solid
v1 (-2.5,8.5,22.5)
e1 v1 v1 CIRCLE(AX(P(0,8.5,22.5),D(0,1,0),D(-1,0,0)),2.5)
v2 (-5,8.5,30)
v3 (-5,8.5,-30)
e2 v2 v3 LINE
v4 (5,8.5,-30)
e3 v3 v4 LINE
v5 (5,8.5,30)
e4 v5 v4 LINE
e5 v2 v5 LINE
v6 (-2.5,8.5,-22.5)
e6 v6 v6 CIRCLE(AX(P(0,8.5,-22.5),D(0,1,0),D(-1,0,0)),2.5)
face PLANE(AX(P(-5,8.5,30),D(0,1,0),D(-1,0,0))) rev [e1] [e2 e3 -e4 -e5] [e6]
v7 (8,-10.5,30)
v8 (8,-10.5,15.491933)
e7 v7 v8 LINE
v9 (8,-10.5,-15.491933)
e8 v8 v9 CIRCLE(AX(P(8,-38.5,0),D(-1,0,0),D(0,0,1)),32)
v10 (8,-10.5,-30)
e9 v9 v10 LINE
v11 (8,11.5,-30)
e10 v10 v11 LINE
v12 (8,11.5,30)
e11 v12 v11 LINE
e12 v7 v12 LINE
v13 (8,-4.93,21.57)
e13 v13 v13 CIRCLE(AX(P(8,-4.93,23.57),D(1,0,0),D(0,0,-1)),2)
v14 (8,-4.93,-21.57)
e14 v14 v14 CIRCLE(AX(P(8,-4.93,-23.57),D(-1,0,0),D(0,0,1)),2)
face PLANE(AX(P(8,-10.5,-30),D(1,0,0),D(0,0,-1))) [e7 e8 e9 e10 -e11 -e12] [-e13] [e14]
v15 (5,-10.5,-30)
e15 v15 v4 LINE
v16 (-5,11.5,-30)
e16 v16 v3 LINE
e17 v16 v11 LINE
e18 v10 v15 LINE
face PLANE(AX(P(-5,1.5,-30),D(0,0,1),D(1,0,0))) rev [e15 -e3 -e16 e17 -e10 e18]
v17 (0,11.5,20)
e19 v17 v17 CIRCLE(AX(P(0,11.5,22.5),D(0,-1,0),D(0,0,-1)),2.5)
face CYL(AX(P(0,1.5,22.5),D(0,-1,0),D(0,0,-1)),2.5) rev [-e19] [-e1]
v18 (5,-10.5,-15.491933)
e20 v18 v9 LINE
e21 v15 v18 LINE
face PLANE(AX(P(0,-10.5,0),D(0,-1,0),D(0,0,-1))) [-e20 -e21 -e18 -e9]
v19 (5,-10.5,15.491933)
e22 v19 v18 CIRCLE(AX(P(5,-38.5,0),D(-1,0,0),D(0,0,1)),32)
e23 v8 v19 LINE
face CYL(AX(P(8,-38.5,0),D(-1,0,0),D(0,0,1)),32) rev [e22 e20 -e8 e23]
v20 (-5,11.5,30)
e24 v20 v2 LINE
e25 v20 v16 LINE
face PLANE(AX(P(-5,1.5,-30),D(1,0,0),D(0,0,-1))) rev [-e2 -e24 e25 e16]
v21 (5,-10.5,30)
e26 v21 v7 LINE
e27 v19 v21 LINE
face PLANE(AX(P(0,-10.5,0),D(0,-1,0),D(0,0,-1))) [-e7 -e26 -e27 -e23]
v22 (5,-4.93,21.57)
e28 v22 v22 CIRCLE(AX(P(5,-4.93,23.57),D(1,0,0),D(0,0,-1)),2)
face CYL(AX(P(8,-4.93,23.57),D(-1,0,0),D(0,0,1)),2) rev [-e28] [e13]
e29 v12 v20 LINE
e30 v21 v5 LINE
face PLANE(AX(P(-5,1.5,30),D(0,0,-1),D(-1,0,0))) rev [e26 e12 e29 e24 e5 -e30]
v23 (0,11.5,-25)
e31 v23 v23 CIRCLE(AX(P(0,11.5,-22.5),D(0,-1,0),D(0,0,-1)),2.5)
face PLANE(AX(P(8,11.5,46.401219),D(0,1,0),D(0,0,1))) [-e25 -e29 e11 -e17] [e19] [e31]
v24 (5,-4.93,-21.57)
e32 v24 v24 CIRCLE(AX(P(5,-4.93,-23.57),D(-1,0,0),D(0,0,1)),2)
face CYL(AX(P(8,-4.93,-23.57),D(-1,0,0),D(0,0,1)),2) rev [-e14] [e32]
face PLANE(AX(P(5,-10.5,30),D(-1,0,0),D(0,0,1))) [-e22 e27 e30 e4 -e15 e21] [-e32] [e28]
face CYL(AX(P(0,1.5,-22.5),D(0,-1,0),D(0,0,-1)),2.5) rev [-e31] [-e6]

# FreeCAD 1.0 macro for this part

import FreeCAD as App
import Part
import Sketcher

V = App.Vector


def add_polygon(sketch, points):
    """Adds a closed chain of lines whose ends are joined by coincident constraints."""
    first, n = sketch.GeometryCount, len(points)
    for a, b in zip(points, points[1:] + points[:1]):
        sketch.addGeometry(Part.LineSegment(App.Vector(*a, 0), App.Vector(*b, 0)), False)
    for i in range(n):
        sketch.addConstraint(Sketcher.Constraint("Coincident", first + i, 2, first + (i + 1) % n, 1))

doc = App.newDocument("Part")
body = doc.addObject("PartDesign::Body", "Body")

# Sketch on XZ plane
sketch1 = doc.addObject("Sketcher::SketchObject", "Sketch")
body.addObject(sketch1)
sketch1.AttachmentSupport = (doc.XZ_Plane, [""])
sketch1.MapMode = "FlatFace"
add_polygon(sketch1, [(-5, -30), (-5, 30), (5, 30), (5, -30)])  # lines 0-3
sketch1.addGeometry(Part.Circle(V(0, 22.5, 0), V(0, 0, 1), 2.5), False)  # 4
sketch1.addGeometry(Part.Circle(V(0, -22.5, 0), V(0, 0, 1), 2.5), False)  # 5
sketch1.addConstraint(Sketcher.Constraint("Vertical", 0))
sketch1.addConstraint(Sketcher.Constraint("Horizontal", 1))
sketch1.addConstraint(Sketcher.Constraint("Vertical", 2))
sketch1.addConstraint(Sketcher.Constraint("Horizontal", 3))
sketch1.addConstraint(Sketcher.Constraint("Equal", 4, 5))
sketch1.addConstraint(Sketcher.Constraint("Symmetric", 4, 3, 5, 3, -1, 1))
sketch1.addConstraint(Sketcher.Constraint("Symmetric", 0, 2, 2, 2, -1, 1))
sketch1.addConstraint(Sketcher.Constraint("PointOnObject", 4, 3, -2))
sketch1.addConstraint(Sketcher.Constraint("Diameter", 4, 5.0))
sketch1.addConstraint(Sketcher.Constraint("DistanceX", 1, 1, 1, 2, 10.0))
sketch1.addConstraint(Sketcher.Constraint("DistanceY", 0, 1, 0, 2, 60.0))
sketch1.addConstraint(Sketcher.Constraint("DistanceY", 5, 3, 4, 3, 45.0))
pad1 = doc.addObject("PartDesign::Pad", "Pad")
body.addObject(pad1)
pad1.Profile = sketch1
pad1.Length = 1.5
pad1.Reversed = True

# Sketch on XZ plane
sketch2 = doc.addObject("Sketcher::SketchObject", "Sketch001")
body.addObject(sketch2)
sketch2.AttachmentSupport = (doc.XZ_Plane, [""])
sketch2.MapMode = "FlatFace"
sketch2.AttachmentOffset = App.Placement(V(0, 0, -1.5), App.Rotation())
add_polygon(sketch2, [(5, -30), (5, 30), (8, 30), (8, -30)])  # lines 0-3
sketch2.addConstraint(Sketcher.Constraint("Vertical", 0))
sketch2.addConstraint(Sketcher.Constraint("Horizontal", 1))
sketch2.addConstraint(Sketcher.Constraint("Vertical", 2))
sketch2.addConstraint(Sketcher.Constraint("Horizontal", 3))
sketch2.addConstraint(Sketcher.Constraint("DistanceX", 1, 1, 1, 2, 3.0))
sketch2.addConstraint(Sketcher.Constraint("DistanceY", 0, 1, 0, 2, 60.0))
sketch2.addConstraint(Sketcher.Constraint("DistanceX", -1, 1, 0, 2, 5.0))
sketch2.addConstraint(Sketcher.Constraint("DistanceY", -1, 1, 0, 2, 30.0))
pad2 = doc.addObject("PartDesign::Pad", "Pad001")
body.addObject(pad2)
pad2.Profile = sketch2
pad2.Length = 12

# Sketch on YZ plane
sketch3 = doc.addObject("Sketcher::SketchObject", "Sketch002")
body.addObject(sketch3)
sketch3.AttachmentSupport = (doc.YZ_Plane, [""])
sketch3.MapMode = "FlatFace"
sketch3.AttachmentOffset = App.Placement(V(0, 0, 5), App.Rotation())
sketch3.addGeometry(Part.Circle(V(-38.5, 0, 0), V(0, 0, 1), 32), False)
sketch3.addConstraint(Sketcher.Constraint("PointOnObject", 0, 3, -1))
sketch3.addConstraint(Sketcher.Constraint("Diameter", 0, 64.0))
sketch3.addConstraint(Sketcher.Constraint("DistanceX", 0, 3, -1, 1, 38.5))
pocket1 = doc.addObject("PartDesign::Pocket", "Pocket")
body.addObject(pocket1)
pocket1.Profile = sketch3
pocket1.Type = "ThroughAll"
pocket1.Reversed = True

# Sketch on XY plane
sketch4 = doc.addObject("Sketcher::SketchObject", "Sketch003")
body.addObject(sketch4)
sketch4.AttachmentSupport = (doc.XY_Plane, [""])
sketch4.MapMode = "FlatFace"
sketch4.AttachmentOffset = App.Placement(V(0, 0, -30), App.Rotation())
add_polygon(sketch4, [(8, 11.5), (8, 1.5), (-5, 1.5), (-5, 11.5)])  # lines 0-3
sketch4.addConstraint(Sketcher.Constraint("Vertical", 0))
sketch4.addConstraint(Sketcher.Constraint("Horizontal", 1))
sketch4.addConstraint(Sketcher.Constraint("Vertical", 2))
sketch4.addConstraint(Sketcher.Constraint("Horizontal", 3))
sketch4.addConstraint(Sketcher.Constraint("DistanceX", 1, 2, 1, 1, 13.0))
sketch4.addConstraint(Sketcher.Constraint("DistanceY", 0, 2, 0, 1, 10.0))
sketch4.addConstraint(Sketcher.Constraint("DistanceX", -1, 1, 0, 2, 8.0))
sketch4.addConstraint(Sketcher.Constraint("DistanceY", -1, 1, 0, 2, 1.5))
pad3 = doc.addObject("PartDesign::Pad", "Pad002")
body.addObject(pad3)
pad3.Profile = sketch4
pad3.Length = 60

# Sketch on XZ plane
sketch5 = doc.addObject("Sketcher::SketchObject", "Sketch004")
body.addObject(sketch5)
sketch5.AttachmentSupport = (doc.XZ_Plane, [""])
sketch5.MapMode = "FlatFace"
sketch5.addGeometry(Part.Circle(V(0, -22.5, 0), V(0, 0, 1), 2.5), False)
sketch5.addGeometry(Part.Circle(V(0, 22.5, 0), V(0, 0, 1), 2.5), False)
sketch5.addConstraint(Sketcher.Constraint("Equal", 0, 1))
sketch5.addConstraint(Sketcher.Constraint("Symmetric", 0, 3, 1, 3, -1, 1))
sketch5.addConstraint(Sketcher.Constraint("PointOnObject", 0, 3, -2))
sketch5.addConstraint(Sketcher.Constraint("Diameter", 0, 5.0))
sketch5.addConstraint(Sketcher.Constraint("DistanceY", 0, 3, 1, 3, 45.0))
pocket2 = doc.addObject("PartDesign::Pocket", "Pocket001")
body.addObject(pocket2)
pocket2.Profile = sketch5
pocket2.Type = "ThroughAll"

# Sketch on XY plane
sketch6 = doc.addObject("Sketcher::SketchObject", "Sketch005")
body.addObject(sketch6)
sketch6.AttachmentSupport = (doc.XY_Plane, [""])
sketch6.MapMode = "FlatFace"
sketch6.AttachmentOffset = App.Placement(V(0, 0, -30), App.Rotation())
add_polygon(sketch6, [(5, 8.5), (5, 0), (-5, 0), (-5, 8.5)])  # lines 0-3
sketch6.addConstraint(Sketcher.Constraint("Vertical", 0))
sketch6.addConstraint(Sketcher.Constraint("Horizontal", 1))
sketch6.addConstraint(Sketcher.Constraint("Vertical", 2))
sketch6.addConstraint(Sketcher.Constraint("Horizontal", 3))
sketch6.addConstraint(Sketcher.Constraint("Symmetric", 0, 2, 1, 2, -1, 1))
sketch6.addConstraint(Sketcher.Constraint("DistanceX", 1, 2, 1, 1, 10.0))
sketch6.addConstraint(Sketcher.Constraint("DistanceY", 0, 2, 0, 1, 8.5))
pocket3 = doc.addObject("PartDesign::Pocket", "Pocket002")
body.addObject(pocket3)
pocket3.Profile = sketch6
pocket3.Type = "ThroughAll"
pocket3.Reversed = True

# Sketch on YZ plane
sketch7 = doc.addObject("Sketcher::SketchObject", "Sketch006")
body.addObject(sketch7)
sketch7.AttachmentSupport = (doc.YZ_Plane, [""])
sketch7.MapMode = "FlatFace"
sketch7.AttachmentOffset = App.Placement(V(0, 0, 5), App.Rotation())
sketch7.addGeometry(Part.Circle(V(-4.93, -23.57, 0), V(0, 0, 1), 2), False)
sketch7.addConstraint(Sketcher.Constraint("Diameter", 0, 4.0))
sketch7.addConstraint(Sketcher.Constraint("DistanceX", 0, 3, -1, 1, 4.93))
sketch7.addConstraint(Sketcher.Constraint("DistanceY", 0, 3, -1, 1, 23.57))
pocket4 = doc.addObject("PartDesign::Pocket", "Pocket003")
body.addObject(pocket4)
pocket4.Profile = sketch7
pocket4.Type = "ThroughAll"
pocket4.Reversed = True
doc.recompute()

mirrored = doc.addObject("PartDesign::Mirrored", "Mirrored")
body.addObject(mirrored)
mirrored.Originals = [pocket4]
mirrored.MirrorPlane = (doc.XY_Plane, [""])
body.Tip = mirrored

doc.recompute()
